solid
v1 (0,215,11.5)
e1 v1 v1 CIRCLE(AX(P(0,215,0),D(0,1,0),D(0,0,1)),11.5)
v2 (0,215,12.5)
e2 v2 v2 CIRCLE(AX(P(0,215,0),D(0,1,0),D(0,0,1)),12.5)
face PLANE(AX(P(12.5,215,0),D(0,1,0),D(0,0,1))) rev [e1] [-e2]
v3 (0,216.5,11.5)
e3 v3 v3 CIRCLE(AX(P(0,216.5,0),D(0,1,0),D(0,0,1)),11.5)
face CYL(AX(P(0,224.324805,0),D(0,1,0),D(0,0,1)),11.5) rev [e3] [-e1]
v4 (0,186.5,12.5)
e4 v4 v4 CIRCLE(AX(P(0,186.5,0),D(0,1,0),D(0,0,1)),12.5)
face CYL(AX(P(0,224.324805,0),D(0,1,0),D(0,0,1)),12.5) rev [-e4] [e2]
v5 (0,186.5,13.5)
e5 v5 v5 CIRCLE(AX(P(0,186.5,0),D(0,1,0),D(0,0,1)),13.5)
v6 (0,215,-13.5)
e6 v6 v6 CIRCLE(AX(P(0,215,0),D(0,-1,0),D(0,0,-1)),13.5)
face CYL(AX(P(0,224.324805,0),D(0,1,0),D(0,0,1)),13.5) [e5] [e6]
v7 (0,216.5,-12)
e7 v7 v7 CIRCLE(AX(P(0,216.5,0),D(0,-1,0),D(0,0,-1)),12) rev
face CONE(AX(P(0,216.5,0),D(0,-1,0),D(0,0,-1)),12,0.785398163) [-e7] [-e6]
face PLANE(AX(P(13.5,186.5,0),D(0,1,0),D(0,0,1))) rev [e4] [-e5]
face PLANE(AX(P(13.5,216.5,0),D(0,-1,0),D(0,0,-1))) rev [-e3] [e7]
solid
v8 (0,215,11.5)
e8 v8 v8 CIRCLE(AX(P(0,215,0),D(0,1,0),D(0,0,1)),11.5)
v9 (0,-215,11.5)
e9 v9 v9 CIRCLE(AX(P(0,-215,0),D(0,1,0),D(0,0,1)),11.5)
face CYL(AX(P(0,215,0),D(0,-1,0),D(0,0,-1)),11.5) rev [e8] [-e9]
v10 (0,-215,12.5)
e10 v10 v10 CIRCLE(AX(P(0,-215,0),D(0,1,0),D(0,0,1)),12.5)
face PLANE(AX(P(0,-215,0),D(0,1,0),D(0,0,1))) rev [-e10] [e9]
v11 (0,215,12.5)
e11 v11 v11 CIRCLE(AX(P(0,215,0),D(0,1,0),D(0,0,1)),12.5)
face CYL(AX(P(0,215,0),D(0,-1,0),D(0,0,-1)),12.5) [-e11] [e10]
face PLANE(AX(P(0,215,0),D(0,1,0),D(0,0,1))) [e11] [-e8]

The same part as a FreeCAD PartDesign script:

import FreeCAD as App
import Part
import Sketcher

V = App.Vector


def edges_at(feature, points):
    """Names of the edges that pass closest to the given points."""
    edges = feature.Shape.Edges
    near = lambda p: min(range(len(edges)), key=lambda i: edges[i].distToShape(Part.Vertex(*p))[0])
    return sorted({f"Edge{near(p) + 1}" for p in points})

doc = App.newDocument("Part")
body = doc.addObject("PartDesign::Body", "Body")

sketch1 = doc.addObject("Sketcher::SketchObject", "Sketch")
body.addObject(sketch1)
sketch1.AttachmentSupport = (doc.XZ_Plane, [""])
sketch1.MapMode = "FlatFace"
sketch1.addGeometry(Part.Circle(V(0, 0, 0), V(0, 0, 1), 12), False)
sketch1.addGeometry(Part.Circle(V(0, 0, 0), V(0, 0, 1), 12), False)
sketch1.addConstraint(Sketcher.Constraint("Coincident", 0, 3, -1, 1))
sketch1.addConstraint(Sketcher.Constraint("Coincident", 1, 3, -1, 1))
sketch1.addConstraint(Sketcher.Constraint("Diameter", 0, 25.0))
sketch1.addConstraint(Sketcher.Constraint("Diameter", 1, 23.0))
pad1 = doc.addObject("PartDesign::Pad", "Pad")
body.addObject(pad1)
pad1.Profile = sketch1
pad1.Length = 430
pad1.Midplane = True
body2 = doc.addObject("PartDesign::Body", "Body001")

sketch2 = doc.addObject("Sketcher::SketchObject", "Sketch001")
body2.addObject(sketch2)
sketch2.AttachmentSupport = (doc.getObject("XY_Plane001"), [""])
sketch2.MapMode = "FlatFace"
sketch2.addGeometry(Part.LineSegment(V(13.5, 186.5, 0), V(13.5, 216.5, 0)), False)
sketch2.addGeometry(Part.LineSegment(V(13.5, 216.5, 0), V(11.5, 216.5, 0)), False)
sketch2.addGeometry(Part.LineSegment(V(11.5, 216.5, 0), V(11.5, 215, 0)), False)
sketch2.addGeometry(Part.LineSegment(V(11.5, 215, 0), V(12.5, 215, 0)), False)
sketch2.addGeometry(Part.LineSegment(V(12.5, 215, 0), V(12.5, 186.5, 0)), False)
sketch2.addGeometry(Part.LineSegment(V(12.5, 186.5, 0), V(13.5, 186.5, 0)), False)
sketch2.addConstraint(Sketcher.Constraint("Coincident", 0, 2, 1, 1))
sketch2.addConstraint(Sketcher.Constraint("Coincident", 1, 2, 2, 1))
sketch2.addConstraint(Sketcher.Constraint("Coincident", 2, 2, 3, 1))
sketch2.addConstraint(Sketcher.Constraint("Coincident", 3, 2, 4, 1))
sketch2.addConstraint(Sketcher.Constraint("Coincident", 4, 2, 5, 1))
sketch2.addConstraint(Sketcher.Constraint("Coincident", 5, 2, 0, 1))
sketch2.addConstraint(Sketcher.Constraint("Vertical", 0))
sketch2.addConstraint(Sketcher.Constraint("Horizontal", 1))
sketch2.addConstraint(Sketcher.Constraint("Vertical", 2))
sketch2.addConstraint(Sketcher.Constraint("Horizontal", 3))
sketch2.addConstraint(Sketcher.Constraint("Vertical", 4))
sketch2.addConstraint(Sketcher.Constraint("Horizontal", 5))
sketch2.addConstraint(Sketcher.Constraint("Equal", 3, 5))
sketch2.addConstraint(Sketcher.Constraint("DistanceX", 1, 2, 1, 1, 2.0))
sketch2.addConstraint(Sketcher.Constraint("DistanceY", 0, 1, 0, 2, 30.0))
sketch2.addConstraint(Sketcher.Constraint("DistanceY", 2, 2, 2, 1, 1.5))
sketch2.addConstraint(Sketcher.Constraint("DistanceY", -1, 1, 2, 2, 215.0))
sketch2.addConstraint(Sketcher.Constraint("DistanceX", -1, 1, 0, 2, 13.5))
revolution = doc.addObject("PartDesign::Revolution", "Revolution")
body2.addObject(revolution)
revolution.Profile = sketch2
revolution.ReferenceAxis = (sketch2, ["V_Axis"])
revolution.Angle = 360
doc.recompute()

chamfer = doc.addObject("PartDesign::Chamfer", "Chamfer")
body2.addObject(chamfer)
chamfer.Base = (revolution, edges_at(revolution, [(-13.5, 216.5, 0)]))
chamfer.Size = 1.5

doc.recompute()
